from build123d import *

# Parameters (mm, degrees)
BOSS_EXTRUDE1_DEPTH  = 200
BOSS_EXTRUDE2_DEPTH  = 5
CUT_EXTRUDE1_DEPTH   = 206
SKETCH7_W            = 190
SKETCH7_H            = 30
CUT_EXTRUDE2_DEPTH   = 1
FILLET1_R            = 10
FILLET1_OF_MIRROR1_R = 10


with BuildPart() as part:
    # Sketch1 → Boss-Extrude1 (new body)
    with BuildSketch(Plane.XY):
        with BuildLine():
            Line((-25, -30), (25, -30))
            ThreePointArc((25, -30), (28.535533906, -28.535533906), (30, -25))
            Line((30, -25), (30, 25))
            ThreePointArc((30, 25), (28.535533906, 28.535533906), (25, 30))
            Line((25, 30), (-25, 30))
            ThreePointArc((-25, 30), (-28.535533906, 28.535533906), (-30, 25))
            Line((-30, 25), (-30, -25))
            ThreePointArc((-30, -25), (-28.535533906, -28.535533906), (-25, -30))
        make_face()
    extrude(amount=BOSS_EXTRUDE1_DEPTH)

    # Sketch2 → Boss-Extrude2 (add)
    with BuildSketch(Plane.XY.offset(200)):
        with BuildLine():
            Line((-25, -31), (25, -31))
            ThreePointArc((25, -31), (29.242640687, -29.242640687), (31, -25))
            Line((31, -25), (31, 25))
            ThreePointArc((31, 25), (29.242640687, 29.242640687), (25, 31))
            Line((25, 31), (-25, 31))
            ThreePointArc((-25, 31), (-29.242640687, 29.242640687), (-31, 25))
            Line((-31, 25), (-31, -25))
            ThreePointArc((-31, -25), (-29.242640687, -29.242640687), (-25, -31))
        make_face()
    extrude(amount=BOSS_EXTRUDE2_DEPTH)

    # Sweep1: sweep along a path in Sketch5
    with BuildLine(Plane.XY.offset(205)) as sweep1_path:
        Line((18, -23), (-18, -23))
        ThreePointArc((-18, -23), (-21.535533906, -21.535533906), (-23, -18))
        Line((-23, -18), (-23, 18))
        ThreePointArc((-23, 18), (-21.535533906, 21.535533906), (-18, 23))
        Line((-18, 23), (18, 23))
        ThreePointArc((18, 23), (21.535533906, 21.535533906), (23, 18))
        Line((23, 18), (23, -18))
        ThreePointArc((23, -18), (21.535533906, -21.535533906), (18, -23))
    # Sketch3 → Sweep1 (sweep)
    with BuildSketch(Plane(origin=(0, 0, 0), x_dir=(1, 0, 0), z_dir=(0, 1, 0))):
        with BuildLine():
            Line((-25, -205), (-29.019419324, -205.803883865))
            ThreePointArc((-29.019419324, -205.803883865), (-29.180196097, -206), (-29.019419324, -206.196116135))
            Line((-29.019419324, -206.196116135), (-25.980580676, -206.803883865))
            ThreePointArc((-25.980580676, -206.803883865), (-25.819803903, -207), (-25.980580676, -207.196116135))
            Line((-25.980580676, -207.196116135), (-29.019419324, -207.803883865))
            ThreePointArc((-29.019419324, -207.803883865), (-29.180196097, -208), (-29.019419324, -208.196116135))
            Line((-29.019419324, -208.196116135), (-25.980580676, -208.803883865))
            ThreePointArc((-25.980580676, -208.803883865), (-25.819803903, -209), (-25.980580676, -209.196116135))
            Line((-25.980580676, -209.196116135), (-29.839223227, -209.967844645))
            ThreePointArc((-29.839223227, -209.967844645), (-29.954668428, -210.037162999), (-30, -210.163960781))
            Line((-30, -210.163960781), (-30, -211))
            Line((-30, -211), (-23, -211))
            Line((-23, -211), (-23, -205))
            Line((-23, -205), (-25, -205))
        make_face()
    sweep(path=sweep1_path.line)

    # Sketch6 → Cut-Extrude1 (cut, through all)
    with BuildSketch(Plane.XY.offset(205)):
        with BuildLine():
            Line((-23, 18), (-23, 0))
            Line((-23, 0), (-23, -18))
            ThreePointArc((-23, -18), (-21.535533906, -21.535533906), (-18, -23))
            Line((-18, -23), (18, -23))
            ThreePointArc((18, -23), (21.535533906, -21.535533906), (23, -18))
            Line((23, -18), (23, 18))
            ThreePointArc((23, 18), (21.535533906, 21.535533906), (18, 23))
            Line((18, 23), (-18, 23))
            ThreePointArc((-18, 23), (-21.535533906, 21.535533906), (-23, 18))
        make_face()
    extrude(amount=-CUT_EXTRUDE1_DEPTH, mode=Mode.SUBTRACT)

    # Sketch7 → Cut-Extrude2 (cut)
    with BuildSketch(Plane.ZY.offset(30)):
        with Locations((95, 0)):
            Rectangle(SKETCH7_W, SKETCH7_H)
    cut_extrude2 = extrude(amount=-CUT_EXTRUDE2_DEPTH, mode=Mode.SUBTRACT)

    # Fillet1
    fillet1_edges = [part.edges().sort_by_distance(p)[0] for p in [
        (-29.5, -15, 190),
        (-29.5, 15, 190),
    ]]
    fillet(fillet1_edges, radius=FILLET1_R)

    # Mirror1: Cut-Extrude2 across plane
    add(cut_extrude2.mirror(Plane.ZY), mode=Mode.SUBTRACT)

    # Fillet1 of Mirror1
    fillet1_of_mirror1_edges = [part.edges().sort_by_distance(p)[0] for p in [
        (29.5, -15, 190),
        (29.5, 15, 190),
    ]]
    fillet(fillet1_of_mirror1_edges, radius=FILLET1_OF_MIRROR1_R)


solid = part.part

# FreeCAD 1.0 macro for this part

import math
import FreeCAD as App
import Part
import Sketcher
Q = App.Units.Quantity


def edges_at(feature, points):
    """Names of the edges that pass closest to the given points."""
    edges = feature.Shape.Edges
    near = lambda p: min(range(len(edges)), key=lambda i: edges[i].distToShape(Part.Vertex(*p))[0])
    return sorted({f"Edge{near(p) + 1}" for p in points})


def add_polygon(sketch, points):
    """Adds a closed chain of lines whose ends are joined by coincident constraints."""
    first, n = sketch.GeometryCount, len(points)
    for a, b in zip(points, points[1:] + points[:1]):
        sketch.addGeometry(Part.LineSegment(App.Vector(*a, 0), App.Vector(*b, 0)), False)
    for i in range(n):
        sketch.addConstraint(Sketcher.Constraint("Coincident", first + i, 2, first + (i + 1) % n, 1))

doc = App.newDocument("Part")
params = doc.addObject("Spreadsheet::Sheet", "Params")
for row, (alias, value) in enumerate([
    ("sketch1_radius", "5 mm"),
    ("sketch1_width", "50 mm"),
    ("pad1_length", "200 mm"),
    ("sketch2_radius", "6 mm"),
    ("sketch2_width", "50 mm"),
    ("pad2_length", "5 mm"),
    ("sketch3_radius", "0.2 mm"),
    ("sketch3_width", "7 mm"),
    ("sketch3_width2", "2 mm"),
    ("sketch3_height", "6 mm"),
    ("sketch4_radius", "5 mm"),
    ("sketch4_width", "36 mm"),
    ("sketch5_radius", "5 mm"),
    ("sketch5_width", "36 mm"),
    ("sketch6_width", "30 mm"),
    ("sketch6_height", "190 mm"),
    ("pocket2_length", "1 mm"),
    ("fillet_radius", "10 mm"),
    ("fillet2_radius", "10 mm"),
], start=1):
    params.set(f"A{row}", alias)
    params.set(f"B{row}", "=" + value)
    params.setAlias(f"B{row}", alias)

body = doc.addObject("PartDesign::Body", "Body")

# Sketch on XY plane
sketch1 = body.newObject("Sketcher::SketchObject", "Sketch")
sketch1.AttachmentSupport = (doc.getObject("XY_Plane"), [""])
sketch1.MapMode = "FlatFace"
sketch1.addGeometry([
    Part.LineSegment(App.Vector(-25, -30, 0), App.Vector(25, -30, 0)),  # 0
    Part.ArcOfCircle(Part.Circle(App.Vector(25, -25, 0), App.Vector(0, 0, 1), 5), math.radians(-90), math.radians(0)),  # 1
    Part.LineSegment(App.Vector(30, -25, 0), App.Vector(30, 25, 0)),  # 2
    Part.ArcOfCircle(Part.Circle(App.Vector(25, 25, 0), App.Vector(0, 0, 1), 5), math.radians(0), math.radians(90)),  # 3
    Part.LineSegment(App.Vector(25, 30, 0), App.Vector(-25, 30, 0)),  # 4
    Part.ArcOfCircle(Part.Circle(App.Vector(-25, 25, 0), App.Vector(0, 0, 1), 5), math.radians(90), math.radians(180)),  # 5
    Part.LineSegment(App.Vector(-30, 25, 0), App.Vector(-30, -25, 0)),  # 6
    Part.ArcOfCircle(Part.Circle(App.Vector(-25, -25, 0), App.Vector(0, 0, 1), 5), math.radians(180), math.radians(270)),  # 7
], False)
sketch1.addConstraint([
    Sketcher.Constraint("Tangent", 0, 2, 1, 1),
    Sketcher.Constraint("Tangent", 1, 2, 2, 1),
    Sketcher.Constraint("Tangent", 2, 2, 3, 1),
    Sketcher.Constraint("Tangent", 3, 2, 4, 1),
    Sketcher.Constraint("Tangent", 4, 2, 5, 1),
    Sketcher.Constraint("Tangent", 5, 2, 6, 1),
    Sketcher.Constraint("Tangent", 6, 2, 7, 1),
    Sketcher.Constraint("Tangent", 7, 2, 0, 1),
    Sketcher.Constraint("Horizontal", 0),
    Sketcher.Constraint("Vertical", 2),
    Sketcher.Constraint("Horizontal", 4),
    Sketcher.Constraint("Vertical", 6),
    Sketcher.Constraint("Equal", 1, 3),
    Sketcher.Constraint("Equal", 3, 5),
    Sketcher.Constraint("Equal", 5, 7),
    Sketcher.Constraint("Symmetric", 1, 3, 5, 3, -1, 1),
    Sketcher.Constraint("Equal", 4, 2),
    Sketcher.Constraint("Radius", 1, Q("5 mm")),
    Sketcher.Constraint("DistanceX", 0, 1, 0, 2, Q("50 mm")),
])
sketch1.setExpression("Constraints[17]", "Params.sketch1_radius")
sketch1.setExpression("Constraints[18]", "Params.sketch1_width")
pad1 = body.newObject("PartDesign::Pad", "Pad")
pad1.Profile = sketch1
pad1.setExpression("Length", "Params.pad1_length")

# Sketch on XY plane
sketch2 = body.newObject("Sketcher::SketchObject", "Sketch001")
sketch2.AttachmentSupport = (doc.getObject("XY_Plane"), [""])
sketch2.MapMode = "FlatFace"
sketch2.AttachmentOffset = App.Placement(App.Vector(0, 0, 200), App.Rotation())
sketch2.addGeometry([
    Part.LineSegment(App.Vector(-25, -31, 0), App.Vector(25, -31, 0)),  # 0
    Part.ArcOfCircle(Part.Circle(App.Vector(25, -25, 0), App.Vector(0, 0, 1), 6), math.radians(-90), math.radians(0)),  # 1
    Part.LineSegment(App.Vector(31, -25, 0), App.Vector(31, 25, 0)),  # 2
    Part.ArcOfCircle(Part.Circle(App.Vector(25, 25, 0), App.Vector(0, 0, 1), 6), math.radians(0), math.radians(90)),  # 3
    Part.LineSegment(App.Vector(25, 31, 0), App.Vector(-25, 31, 0)),  # 4
    Part.ArcOfCircle(Part.Circle(App.Vector(-25, 25, 0), App.Vector(0, 0, 1), 6), math.radians(90), math.radians(180)),  # 5
    Part.LineSegment(App.Vector(-31, 25, 0), App.Vector(-31, -25, 0)),  # 6
    Part.ArcOfCircle(Part.Circle(App.Vector(-25, -25, 0), App.Vector(0, 0, 1), 6), math.radians(180), math.radians(270)),  # 7
], False)
sketch2.addConstraint([
    Sketcher.Constraint("Tangent", 0, 2, 1, 1),
    Sketcher.Constraint("Tangent", 1, 2, 2, 1),
    Sketcher.Constraint("Tangent", 2, 2, 3, 1),
    Sketcher.Constraint("Tangent", 3, 2, 4, 1),
    Sketcher.Constraint("Tangent", 4, 2, 5, 1),
    Sketcher.Constraint("Tangent", 5, 2, 6, 1),
    Sketcher.Constraint("Tangent", 6, 2, 7, 1),
    Sketcher.Constraint("Tangent", 7, 2, 0, 1),
    Sketcher.Constraint("Horizontal", 0),
    Sketcher.Constraint("Vertical", 2),
    Sketcher.Constraint("Horizontal", 4),
    Sketcher.Constraint("Vertical", 6),
    Sketcher.Constraint("Equal", 1, 3),
    Sketcher.Constraint("Equal", 3, 5),
    Sketcher.Constraint("Equal", 5, 7),
    Sketcher.Constraint("Symmetric", 1, 3, 5, 3, -1, 1),
    Sketcher.Constraint("Equal", 4, 2),
    Sketcher.Constraint("Radius", 1, Q("6 mm")),
    Sketcher.Constraint("DistanceX", 0, 1, 0, 2, Q("50 mm")),
])
sketch2.setExpression("Constraints[17]", "Params.sketch2_radius")
sketch2.setExpression("Constraints[18]", "Params.sketch2_width")
pad2 = body.newObject("PartDesign::Pad", "Pad001")
pad2.Profile = sketch2
pad2.setExpression("Length", "Params.pad2_length")

# Sketch on XZ plane
sketch3 = body.newObject("Sketcher::SketchObject", "Sketch002")
sketch3.AttachmentSupport = (doc.getObject("XZ_Plane"), [""])
sketch3.MapMode = "FlatFace"
sketch3.addGeometry([
    Part.LineSegment(App.Vector(-25, 205, 0), App.Vector(-29.02, 205.8, 0)),  # 0
    Part.ArcOfCircle(Part.Circle(App.Vector(-28.98, 206, 0), App.Vector(0, 0, 1), 0.2), math.radians(101), math.radians(259)),  # 1
    Part.LineSegment(App.Vector(-29.02, 206.2, 0), App.Vector(-25.98, 206.8, 0)),  # 2
    Part.ArcOfCircle(Part.Circle(App.Vector(-26.02, 207, 0), App.Vector(0, 0, 1), 0.2), math.radians(-79), math.radians(79)),  # 3
    Part.LineSegment(App.Vector(-25.98, 207.2, 0), App.Vector(-29.02, 207.8, 0)),  # 4
    Part.ArcOfCircle(Part.Circle(App.Vector(-28.98, 208, 0), App.Vector(0, 0, 1), 0.2), math.radians(101), math.radians(259)),  # 5
    Part.LineSegment(App.Vector(-29.02, 208.2, 0), App.Vector(-25.98, 208.8, 0)),  # 6
    Part.ArcOfCircle(Part.Circle(App.Vector(-26.02, 209, 0), App.Vector(0, 0, 1), 0.2), math.radians(-79), math.radians(79)),  # 7
    Part.LineSegment(App.Vector(-25.98, 209.2, 0), App.Vector(-29.84, 209.97, 0)),  # 8
    Part.ArcOfCircle(Part.Circle(App.Vector(-29.8, 210.16, 0), App.Vector(0, 0, 1), 0.2), math.radians(180), math.radians(259)),  # 9
    Part.LineSegment(App.Vector(-30, 210.16, 0), App.Vector(-30, 211, 0)),  # 10
    Part.LineSegment(App.Vector(-30, 211, 0), App.Vector(-23, 211, 0)),  # 11
    Part.LineSegment(App.Vector(-23, 211, 0), App.Vector(-23, 205, 0)),  # 12
    Part.LineSegment(App.Vector(-23, 205, 0), App.Vector(-25, 205, 0)),  # 13
], False)
sketch3.addConstraint([
    Sketcher.Constraint("Tangent", 0, 2, 1, 2),
    Sketcher.Constraint("Tangent", 1, 1, 2, 1),
    Sketcher.Constraint("Tangent", 2, 2, 3, 1),
    Sketcher.Constraint("Tangent", 3, 2, 4, 1),
    Sketcher.Constraint("Tangent", 4, 2, 5, 2),
    Sketcher.Constraint("Tangent", 5, 1, 6, 1),
    Sketcher.Constraint("Tangent", 6, 2, 7, 1),
    Sketcher.Constraint("Tangent", 7, 2, 8, 1),
    Sketcher.Constraint("Tangent", 8, 2, 9, 2),
    Sketcher.Constraint("Tangent", 9, 1, 10, 1),
    Sketcher.Constraint("Coincident", 10, 2, 11, 1),
    Sketcher.Constraint("Coincident", 11, 2, 12, 1),
    Sketcher.Constraint("Coincident", 12, 2, 13, 1),
    Sketcher.Constraint("Coincident", 13, 2, 0, 1),
    Sketcher.Constraint("Vertical", 10),
    Sketcher.Constraint("Horizontal", 11),
    Sketcher.Constraint("Vertical", 12),
    Sketcher.Constraint("Horizontal", 13),
    Sketcher.Constraint("Equal", 1, 3),
    Sketcher.Constraint("Equal", 3, 5),
    Sketcher.Constraint("Equal", 5, 7),
    Sketcher.Constraint("Equal", 7, 9),
    Sketcher.Constraint("Parallel", 0, 4),
    Sketcher.Constraint("Parallel", 2, 6),
    Sketcher.Constraint("Parallel", 4, 8),
    Sketcher.Constraint("Vertical", 1, 3, 5, 3),
    Sketcher.Constraint("Vertical", 3, 3, 7, 3),
    Sketcher.Constraint("Vertical", 0, 2, 1, 1),
    Sketcher.Constraint("Radius", 1, Q("0.2 mm")),
    Sketcher.Constraint("DistanceX", 11, 1, 11, 2, Q("7 mm")),
    Sketcher.Constraint("DistanceX", 13, 2, 13, 1, Q("2 mm")),
    Sketcher.Constraint("DistanceY", 12, 2, 12, 1, Q("6 mm")),
    Sketcher.Constraint("DistanceY", -1, 1, 1, 3, Q("206 mm")),
    Sketcher.Constraint("DistanceY", -1, 1, 3, 3, Q("207 mm")),
    Sketcher.Constraint("DistanceX", 9, 1, -1, 1, Q("30 mm")),
    Sketcher.Constraint("DistanceY", -1, 1, 10, 2, Q("211 mm")),
    Sketcher.Constraint("DistanceY", 10, 1, 10, 2, Q("0.836039 mm")),
])
sketch3.setExpression("Constraints[28]", "Params.sketch3_radius")
sketch3.setExpression("Constraints[29]", "Params.sketch3_width")
sketch3.setExpression("Constraints[30]", "Params.sketch3_width2")
sketch3.setExpression("Constraints[31]", "Params.sketch3_height")

# Sketch on XY plane
sketch4 = body.newObject("Sketcher::SketchObject", "Sketch003")
sketch4.AttachmentSupport = (doc.getObject("XY_Plane"), [""])
sketch4.MapMode = "FlatFace"
sketch4.AttachmentOffset = App.Placement(App.Vector(0, 0, 205), App.Rotation())
sketch4.addGeometry([
    Part.LineSegment(App.Vector(18, -23, 0), App.Vector(-18, -23, 0)),  # 0
    Part.ArcOfCircle(Part.Circle(App.Vector(-18, -18, 0), App.Vector(0, 0, 1), 5), math.radians(180), math.radians(270)),  # 1
    Part.LineSegment(App.Vector(-23, -18, 0), App.Vector(-23, 18, 0)),  # 2
    Part.ArcOfCircle(Part.Circle(App.Vector(-18, 18, 0), App.Vector(0, 0, 1), 5), math.radians(90), math.radians(180)),  # 3
    Part.LineSegment(App.Vector(-18, 23, 0), App.Vector(18, 23, 0)),  # 4
    Part.ArcOfCircle(Part.Circle(App.Vector(18, 18, 0), App.Vector(0, 0, 1), 5), math.radians(0), math.radians(90)),  # 5
    Part.LineSegment(App.Vector(23, 18, 0), App.Vector(23, -18, 0)),  # 6
    Part.ArcOfCircle(Part.Circle(App.Vector(18, -18, 0), App.Vector(0, 0, 1), 5), math.radians(-90), math.radians(0)),  # 7
], False)
sketch4.addConstraint([
    Sketcher.Constraint("Tangent", 0, 2, 1, 2),
    Sketcher.Constraint("Tangent", 1, 1, 2, 1),
    Sketcher.Constraint("Tangent", 2, 2, 3, 2),
    Sketcher.Constraint("Tangent", 3, 1, 4, 1),
    Sketcher.Constraint("Tangent", 4, 2, 5, 2),
    Sketcher.Constraint("Tangent", 5, 1, 6, 1),
    Sketcher.Constraint("Tangent", 6, 2, 7, 2),
    Sketcher.Constraint("Tangent", 7, 1, 0, 1),
    Sketcher.Constraint("Horizontal", 0),
    Sketcher.Constraint("Vertical", 2),
    Sketcher.Constraint("Horizontal", 4),
    Sketcher.Constraint("Vertical", 6),
    Sketcher.Constraint("Equal", 1, 3),
    Sketcher.Constraint("Equal", 3, 5),
    Sketcher.Constraint("Equal", 5, 7),
    Sketcher.Constraint("Symmetric", 1, 3, 5, 3, -1, 1),
    Sketcher.Constraint("Equal", 4, 2),
    Sketcher.Constraint("Radius", 1, Q("5 mm")),
    Sketcher.Constraint("DistanceX", 0, 2, 0, 1, Q("36 mm")),
])
sketch4.setExpression("Constraints[17]", "Params.sketch4_radius")
sketch4.setExpression("Constraints[18]", "Params.sketch4_width")
doc.recompute()

additivepipe = body.newObject("PartDesign::AdditivePipe", "AdditivePipe")
additivepipe.Profile = sketch3
additivepipe.Spine = (sketch4, ["Edge1", "Edge2", "Edge3", "Edge4", "Edge5", "Edge6", "Edge7", "Edge8"])

# Sketch on XY plane
sketch5 = body.newObject("Sketcher::SketchObject", "Sketch004")
sketch5.AttachmentSupport = (doc.getObject("XY_Plane"), [""])
sketch5.MapMode = "FlatFace"
sketch5.AttachmentOffset = App.Placement(App.Vector(0, 0, 205), App.Rotation())
sketch5.addGeometry([
    Part.LineSegment(App.Vector(-23, 18, 0), App.Vector(-23, -18, 0)),  # 0
    Part.ArcOfCircle(Part.Circle(App.Vector(-18, -18, 0), App.Vector(0, 0, 1), 5), math.radians(180), math.radians(270)),  # 1
    Part.LineSegment(App.Vector(-18, -23, 0), App.Vector(18, -23, 0)),  # 2
    Part.ArcOfCircle(Part.Circle(App.Vector(18, -18, 0), App.Vector(0, 0, 1), 5), math.radians(-90), math.radians(0)),  # 3
    Part.LineSegment(App.Vector(23, -18, 0), App.Vector(23, 18, 0)),  # 4
    Part.ArcOfCircle(Part.Circle(App.Vector(18, 18, 0), App.Vector(0, 0, 1), 5), math.radians(0), math.radians(90)),  # 5
    Part.LineSegment(App.Vector(18, 23, 0), App.Vector(-18, 23, 0)),  # 6
    Part.ArcOfCircle(Part.Circle(App.Vector(-18, 18, 0), App.Vector(0, 0, 1), 5), math.radians(90), math.radians(180)),  # 7
], False)
sketch5.addConstraint([
    Sketcher.Constraint("Tangent", 0, 2, 1, 1),
    Sketcher.Constraint("Tangent", 1, 2, 2, 1),
    Sketcher.Constraint("Tangent", 2, 2, 3, 1),
    Sketcher.Constraint("Tangent", 3, 2, 4, 1),
    Sketcher.Constraint("Tangent", 4, 2, 5, 1),
    Sketcher.Constraint("Tangent", 5, 2, 6, 1),
    Sketcher.Constraint("Tangent", 6, 2, 7, 1),
    Sketcher.Constraint("Tangent", 7, 2, 0, 1),
    Sketcher.Constraint("Vertical", 0),
    Sketcher.Constraint("Horizontal", 2),
    Sketcher.Constraint("Vertical", 4),
    Sketcher.Constraint("Horizontal", 6),
    Sketcher.Constraint("Equal", 1, 3),
    Sketcher.Constraint("Equal", 3, 5),
    Sketcher.Constraint("Equal", 5, 7),
    Sketcher.Constraint("Symmetric", 1, 3, 5, 3, -1, 1),
    Sketcher.Constraint("Equal", 6, 0),
    Sketcher.Constraint("Radius", 1, Q("5 mm")),
    Sketcher.Constraint("DistanceX", 2, 1, 2, 2, Q("36 mm")),
])
sketch5.setExpression("Constraints[17]", "Params.sketch5_radius")
sketch5.setExpression("Constraints[18]", "Params.sketch5_width")
pocket1 = body.newObject("PartDesign::Pocket", "Pocket")
pocket1.Profile = sketch5
pocket1.Type = "ThroughAll"

# Sketch on YZ plane
sketch6 = body.newObject("Sketcher::SketchObject", "Sketch005")
sketch6.AttachmentSupport = (doc.getObject("YZ_Plane"), [""])
sketch6.MapMode = "FlatFace"
sketch6.AttachmentOffset = App.Placement(App.Vector(0, 0, -30), App.Rotation())
add_polygon(sketch6, [(15, 0), (-15, 0), (-15, 190), (15, 190)])  # lines 0-3
sketch6.addConstraint([
    Sketcher.Constraint("Horizontal", 0),
    Sketcher.Constraint("Vertical", 1),
    Sketcher.Constraint("Horizontal", 2),
    Sketcher.Constraint("Vertical", 3),
    Sketcher.Constraint("Symmetric", 0, 2, 3, 2, -1, 1),
    Sketcher.Constraint("DistanceX", 0, 2, 0, 1, Q("30 mm")),
    Sketcher.Constraint("DistanceY", 1, 1, 1, 2, Q("190 mm")),
])
sketch6.setExpression("Constraints[9]", "Params.sketch6_width")
sketch6.setExpression("Constraints[10]", "Params.sketch6_height")
pocket2 = body.newObject("PartDesign::Pocket", "Pocket001")
pocket2.Profile = sketch6
pocket2.setExpression("Length", "Params.pocket2_length")
pocket2.Reversed = True
doc.recompute()

fillet = body.newObject("PartDesign::Fillet", "Fillet")
fillet.Base = (pocket2, edges_at(pocket2, [(-29.5, -15, 190), (-29.5, 15, 190)]))
fillet.setExpression("Radius", "Params.fillet_radius")
doc.recompute()

mirrored = body.newObject("PartDesign::Mirrored", "Mirrored")
mirrored.Originals = [pocket2]
mirrored.MirrorPlane = (doc.getObject("YZ_Plane"), [""])
body.Tip = mirrored
doc.recompute()

fillet2 = body.newObject("PartDesign::Fillet", "Fillet001")
fillet2.Base = (mirrored, edges_at(mirrored, [(29.5, -15, 190), (29.5, 15, 190)]))
fillet2.setExpression("Radius", "Params.fillet2_radius")

doc.recompute()
